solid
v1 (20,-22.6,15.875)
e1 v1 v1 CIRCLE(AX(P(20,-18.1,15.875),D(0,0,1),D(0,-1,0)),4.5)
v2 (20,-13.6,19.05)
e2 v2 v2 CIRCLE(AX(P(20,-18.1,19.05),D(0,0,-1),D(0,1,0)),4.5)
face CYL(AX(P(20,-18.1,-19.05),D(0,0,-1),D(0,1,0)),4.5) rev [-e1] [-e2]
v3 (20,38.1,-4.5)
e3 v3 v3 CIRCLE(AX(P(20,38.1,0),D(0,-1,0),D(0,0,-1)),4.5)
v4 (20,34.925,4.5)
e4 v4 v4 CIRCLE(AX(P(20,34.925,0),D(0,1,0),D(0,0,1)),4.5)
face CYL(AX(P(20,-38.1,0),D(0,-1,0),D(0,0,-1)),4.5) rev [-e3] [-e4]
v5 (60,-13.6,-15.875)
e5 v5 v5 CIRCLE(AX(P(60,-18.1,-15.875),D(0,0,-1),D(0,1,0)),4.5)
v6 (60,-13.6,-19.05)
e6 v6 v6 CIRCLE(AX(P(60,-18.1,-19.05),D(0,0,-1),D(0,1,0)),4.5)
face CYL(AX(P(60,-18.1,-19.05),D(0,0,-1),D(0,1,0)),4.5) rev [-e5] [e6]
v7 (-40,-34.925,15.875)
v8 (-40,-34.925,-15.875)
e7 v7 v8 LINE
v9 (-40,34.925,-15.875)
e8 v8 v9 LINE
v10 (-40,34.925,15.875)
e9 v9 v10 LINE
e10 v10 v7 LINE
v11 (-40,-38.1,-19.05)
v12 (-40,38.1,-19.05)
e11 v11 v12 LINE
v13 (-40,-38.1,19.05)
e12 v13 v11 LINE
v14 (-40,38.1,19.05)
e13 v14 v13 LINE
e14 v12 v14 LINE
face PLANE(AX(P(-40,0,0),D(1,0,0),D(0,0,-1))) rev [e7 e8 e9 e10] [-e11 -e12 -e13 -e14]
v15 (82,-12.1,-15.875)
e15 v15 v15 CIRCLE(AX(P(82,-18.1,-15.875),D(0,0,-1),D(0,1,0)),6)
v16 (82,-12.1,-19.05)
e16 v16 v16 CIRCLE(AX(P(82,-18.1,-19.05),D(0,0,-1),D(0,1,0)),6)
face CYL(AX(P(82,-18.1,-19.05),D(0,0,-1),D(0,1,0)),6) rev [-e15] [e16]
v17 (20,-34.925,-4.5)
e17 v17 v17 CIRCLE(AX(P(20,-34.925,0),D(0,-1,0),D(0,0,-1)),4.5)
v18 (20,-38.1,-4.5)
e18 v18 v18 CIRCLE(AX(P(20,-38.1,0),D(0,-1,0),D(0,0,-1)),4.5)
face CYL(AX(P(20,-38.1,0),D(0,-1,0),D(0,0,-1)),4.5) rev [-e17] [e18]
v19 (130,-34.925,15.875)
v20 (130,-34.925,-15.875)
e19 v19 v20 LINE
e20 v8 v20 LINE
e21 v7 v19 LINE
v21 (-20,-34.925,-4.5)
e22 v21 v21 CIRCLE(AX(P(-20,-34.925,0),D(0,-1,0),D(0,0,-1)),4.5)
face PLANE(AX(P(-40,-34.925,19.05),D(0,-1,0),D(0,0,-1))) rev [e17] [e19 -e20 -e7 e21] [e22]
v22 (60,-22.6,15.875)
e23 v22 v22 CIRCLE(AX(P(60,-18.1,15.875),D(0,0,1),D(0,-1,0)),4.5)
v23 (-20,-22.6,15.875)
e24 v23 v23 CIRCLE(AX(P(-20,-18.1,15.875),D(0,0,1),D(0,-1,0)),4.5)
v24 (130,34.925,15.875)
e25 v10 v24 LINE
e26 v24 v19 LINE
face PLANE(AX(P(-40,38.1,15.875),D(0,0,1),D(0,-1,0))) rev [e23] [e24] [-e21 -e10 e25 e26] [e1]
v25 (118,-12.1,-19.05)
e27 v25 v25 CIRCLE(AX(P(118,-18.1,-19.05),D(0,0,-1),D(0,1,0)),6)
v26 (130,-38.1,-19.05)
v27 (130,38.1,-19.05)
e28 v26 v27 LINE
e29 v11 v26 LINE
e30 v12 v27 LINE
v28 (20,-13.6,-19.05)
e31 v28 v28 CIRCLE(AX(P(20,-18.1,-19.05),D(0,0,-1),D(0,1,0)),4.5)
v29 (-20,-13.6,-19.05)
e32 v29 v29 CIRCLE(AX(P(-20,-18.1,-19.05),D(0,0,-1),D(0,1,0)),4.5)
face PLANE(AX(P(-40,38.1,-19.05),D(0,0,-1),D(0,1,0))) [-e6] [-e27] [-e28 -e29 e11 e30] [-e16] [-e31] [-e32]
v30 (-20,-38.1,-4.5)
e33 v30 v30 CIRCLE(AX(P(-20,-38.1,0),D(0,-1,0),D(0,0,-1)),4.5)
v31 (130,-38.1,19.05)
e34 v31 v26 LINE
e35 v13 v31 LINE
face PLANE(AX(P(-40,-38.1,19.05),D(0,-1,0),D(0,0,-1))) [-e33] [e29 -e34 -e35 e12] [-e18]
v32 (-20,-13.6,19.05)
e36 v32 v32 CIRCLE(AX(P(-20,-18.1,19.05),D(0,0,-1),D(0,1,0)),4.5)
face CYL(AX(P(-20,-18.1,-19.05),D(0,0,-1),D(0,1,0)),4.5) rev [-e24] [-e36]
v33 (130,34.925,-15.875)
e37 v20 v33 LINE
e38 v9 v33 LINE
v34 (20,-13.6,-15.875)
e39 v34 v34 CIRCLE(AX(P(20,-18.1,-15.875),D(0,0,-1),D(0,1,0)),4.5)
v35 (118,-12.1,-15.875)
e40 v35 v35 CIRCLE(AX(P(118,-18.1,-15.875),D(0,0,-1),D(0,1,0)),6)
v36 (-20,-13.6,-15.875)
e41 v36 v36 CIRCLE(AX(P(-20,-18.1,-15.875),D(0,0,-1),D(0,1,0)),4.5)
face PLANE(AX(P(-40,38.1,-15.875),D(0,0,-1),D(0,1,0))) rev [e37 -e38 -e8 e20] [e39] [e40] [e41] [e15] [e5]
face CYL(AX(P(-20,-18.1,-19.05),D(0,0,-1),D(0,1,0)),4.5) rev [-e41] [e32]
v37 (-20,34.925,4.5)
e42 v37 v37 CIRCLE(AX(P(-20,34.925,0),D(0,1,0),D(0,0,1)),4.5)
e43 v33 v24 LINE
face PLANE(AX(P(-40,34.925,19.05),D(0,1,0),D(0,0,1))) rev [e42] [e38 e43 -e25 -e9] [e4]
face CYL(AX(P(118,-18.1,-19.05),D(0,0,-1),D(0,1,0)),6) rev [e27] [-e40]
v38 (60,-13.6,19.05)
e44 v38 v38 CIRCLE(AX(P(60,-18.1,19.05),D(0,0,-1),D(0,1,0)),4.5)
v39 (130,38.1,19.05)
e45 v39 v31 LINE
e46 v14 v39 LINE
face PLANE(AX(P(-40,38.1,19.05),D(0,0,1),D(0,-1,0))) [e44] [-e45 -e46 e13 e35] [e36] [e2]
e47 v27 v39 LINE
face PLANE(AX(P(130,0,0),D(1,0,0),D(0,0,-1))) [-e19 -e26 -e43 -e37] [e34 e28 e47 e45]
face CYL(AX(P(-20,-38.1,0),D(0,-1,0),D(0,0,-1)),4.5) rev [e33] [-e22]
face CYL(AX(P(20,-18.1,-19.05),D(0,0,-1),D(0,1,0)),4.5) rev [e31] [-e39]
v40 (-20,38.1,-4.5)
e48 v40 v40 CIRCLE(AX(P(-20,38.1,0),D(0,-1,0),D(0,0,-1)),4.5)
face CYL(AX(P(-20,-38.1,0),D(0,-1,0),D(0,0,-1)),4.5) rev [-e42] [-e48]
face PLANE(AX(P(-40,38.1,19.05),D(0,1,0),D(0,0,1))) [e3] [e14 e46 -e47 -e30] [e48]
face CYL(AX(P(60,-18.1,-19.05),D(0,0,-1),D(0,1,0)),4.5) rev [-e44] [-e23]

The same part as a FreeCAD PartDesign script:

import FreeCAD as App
import Part
import Sketcher
from FreeCAD import Vector
Q = App.Units.Quantity


def add_polygon(sketch, points):
    """Adds a closed chain of lines whose ends are joined by coincident constraints."""
    first, n = sketch.GeometryCount, len(points)
    for a, b in zip(points, points[1:] + points[:1]):
        sketch.addGeometry(Part.LineSegment(App.Vector(*a, 0), App.Vector(*b, 0)), False)
    for i in range(n):
        sketch.addConstraint(Sketcher.Constraint("Coincident", first + i, 2, first + (i + 1) % n, 1))

doc = App.newDocument("Part")
body = doc.addObject("PartDesign::Body", "Body")

sketch1 = body.newObject("Sketcher::SketchObject", "Sketch")
sketch1.AttachmentSupport = (doc.getObject("YZ_Plane"), [""])
sketch1.MapMode = "FlatFace"
sketch1.AttachmentOffset = App.Placement(Vector(0, 0, -40), App.Rotation())
add_polygon(sketch1, [(38, 19), (-38, 19), (-38, -19), (38, -19)])
add_polygon(sketch1, [(-35, -16), (-35, 16), (35, 16), (35, -16)])
sketch1.addConstraint([
    Sketcher.Constraint("Horizontal", 0),
    Sketcher.Constraint("Vertical", 1),
    Sketcher.Constraint("Horizontal", 2),
    Sketcher.Constraint("Vertical", 3),
    Sketcher.Constraint("Vertical", 4),
    Sketcher.Constraint("Horizontal", 5),
    Sketcher.Constraint("Vertical", 6),
    Sketcher.Constraint("Horizontal", 7),
    Sketcher.Constraint("Symmetric", 0, 2, 2, 2, -1, 1),
    Sketcher.Constraint("Symmetric", 4, 2, 6, 2, -1, 1),
    Sketcher.Constraint("DistanceX", 0, 2, 0, 1, Q("3 in")),
    Sketcher.Constraint("DistanceY", 1, 2, 1, 1, Q("1.5 in")),
    Sketcher.Constraint("DistanceX", 5, 1, 5, 2, Q("2.75 in")),
    Sketcher.Constraint("DistanceY", 4, 1, 4, 2, Q("1.25 in")),
])
pad1 = body.newObject("PartDesign::Pad", "Pad")
pad1.Profile = sketch1
pad1.Length = 170

sketch2 = body.newObject("Sketcher::SketchObject", "Sketch001")
sketch2.AttachmentSupport = (doc.getObject("XY_Plane"), [""])
sketch2.MapMode = "FlatFace"
sketch2.AttachmentOffset = App.Placement(Vector(0, 0, -0.75 * 25.4), App.Rotation())
sketch2.addGeometry([
    Part.Circle(Vector(-20, -18.1, 0), Vector(0, 0, 1), 4.5),
    Part.Circle(Vector(20, -18.1, 0), Vector(0, 0, 1), 4.5),
    Part.Circle(Vector(60, -18.1, 0), Vector(0, 0, 1), 4.5),
], False)
sketch2.addConstraint([
    Sketcher.Constraint("Equal", 0, 1),
    Sketcher.Constraint("Equal", 1, 2),
    Sketcher.Constraint("Symmetric", 0, 3, 1, 3, -2),
    Sketcher.Constraint("Horizontal", 1, 3, 2, 3),
    Sketcher.Constraint("Diameter", 0, 9.0),
    Sketcher.Constraint("DistanceX", 0, 3, -1, 1, 20.0),
    Sketcher.Constraint("DistanceY", 0, 3, -1, 1, 18.1),
    Sketcher.Constraint("DistanceX", -1, 1, 2, 3, 60.0),
])
doc.recompute()
hole = body.newObject("PartDesign::Hole", "Hole")
hole.Profile = sketch2
hole.ThreadType = "None"
hole.Diameter = 9
hole.DepthType = "ThroughAll"
hole.Reversed = True

sketch3 = body.newObject("Sketcher::SketchObject", "Sketch002")
sketch3.AttachmentSupport = (doc.getObject("XZ_Plane"), [""])
sketch3.MapMode = "FlatFace"
sketch3.AttachmentOffset = App.Placement(Vector(0, 0, 1.5 * 25.4), App.Rotation())
sketch3.addGeometry([
    Part.Circle(Vector(20, 0, 0), Vector(0, 0, 1), 4.5),
    Part.Circle(Vector(-20, 0, 0), Vector(0, 0, 1), 4.5),
], False)
sketch3.addConstraint([
    Sketcher.Constraint("Equal", 0, 1),
    Sketcher.Constraint("Symmetric", 0, 3, 1, 3, -1, 1),
    Sketcher.Constraint("PointOnObject", 0, 3, -1),
    Sketcher.Constraint("Diameter", 0, 9.0),
    Sketcher.Constraint("DistanceX", -1, 1, 0, 3, 20.0),
])
doc.recompute()
hole2 = body.newObject("PartDesign::Hole", "Hole001")
hole2.Profile = sketch3
hole2.ThreadType = "None"
hole2.Diameter = 9
hole2.DepthType = "ThroughAll"

sketch4 = body.newObject("Sketcher::SketchObject", "Sketch003")
sketch4.AttachmentSupport = (doc.getObject("XY_Plane"), [""])
sketch4.MapMode = "FlatFace"
sketch4.AttachmentOffset = App.Placement(Vector(0, 0, -0.75 * 25.4), App.Rotation())
sketch4.addGeometry([
    Part.Circle(Vector(118, -18, 0), Vector(0, 0, 1), 6),
    Part.Circle(Vector(82, -18, 0), Vector(0, 0, 1), 6),
], False)
sketch4.addConstraint([
    Sketcher.Constraint("Equal", 0, 1),
    Sketcher.Constraint("Horizontal", 0, 3, 1, 3),
    Sketcher.Constraint("Diameter", 0, 12.0),
    Sketcher.Constraint("DistanceX", -1, 1, 0, 3, 118.0),
    Sketcher.Constraint("DistanceY", 0, 3, -1, 1, 18.1),
    Sketcher.Constraint("DistanceX", -1, 1, 1, 3, 82.0),
])
doc.recompute()
hole3 = body.newObject("PartDesign::Hole", "Hole002")
hole3.Profile = sketch4
hole3.ThreadType = "None"
hole3.Diameter = 12
hole3.DepthType = "Dimension"
hole3.Depth = Q("0.125 in")
hole3.DrillPoint = "Flat"
hole3.Reversed = True

doc.recompute()
